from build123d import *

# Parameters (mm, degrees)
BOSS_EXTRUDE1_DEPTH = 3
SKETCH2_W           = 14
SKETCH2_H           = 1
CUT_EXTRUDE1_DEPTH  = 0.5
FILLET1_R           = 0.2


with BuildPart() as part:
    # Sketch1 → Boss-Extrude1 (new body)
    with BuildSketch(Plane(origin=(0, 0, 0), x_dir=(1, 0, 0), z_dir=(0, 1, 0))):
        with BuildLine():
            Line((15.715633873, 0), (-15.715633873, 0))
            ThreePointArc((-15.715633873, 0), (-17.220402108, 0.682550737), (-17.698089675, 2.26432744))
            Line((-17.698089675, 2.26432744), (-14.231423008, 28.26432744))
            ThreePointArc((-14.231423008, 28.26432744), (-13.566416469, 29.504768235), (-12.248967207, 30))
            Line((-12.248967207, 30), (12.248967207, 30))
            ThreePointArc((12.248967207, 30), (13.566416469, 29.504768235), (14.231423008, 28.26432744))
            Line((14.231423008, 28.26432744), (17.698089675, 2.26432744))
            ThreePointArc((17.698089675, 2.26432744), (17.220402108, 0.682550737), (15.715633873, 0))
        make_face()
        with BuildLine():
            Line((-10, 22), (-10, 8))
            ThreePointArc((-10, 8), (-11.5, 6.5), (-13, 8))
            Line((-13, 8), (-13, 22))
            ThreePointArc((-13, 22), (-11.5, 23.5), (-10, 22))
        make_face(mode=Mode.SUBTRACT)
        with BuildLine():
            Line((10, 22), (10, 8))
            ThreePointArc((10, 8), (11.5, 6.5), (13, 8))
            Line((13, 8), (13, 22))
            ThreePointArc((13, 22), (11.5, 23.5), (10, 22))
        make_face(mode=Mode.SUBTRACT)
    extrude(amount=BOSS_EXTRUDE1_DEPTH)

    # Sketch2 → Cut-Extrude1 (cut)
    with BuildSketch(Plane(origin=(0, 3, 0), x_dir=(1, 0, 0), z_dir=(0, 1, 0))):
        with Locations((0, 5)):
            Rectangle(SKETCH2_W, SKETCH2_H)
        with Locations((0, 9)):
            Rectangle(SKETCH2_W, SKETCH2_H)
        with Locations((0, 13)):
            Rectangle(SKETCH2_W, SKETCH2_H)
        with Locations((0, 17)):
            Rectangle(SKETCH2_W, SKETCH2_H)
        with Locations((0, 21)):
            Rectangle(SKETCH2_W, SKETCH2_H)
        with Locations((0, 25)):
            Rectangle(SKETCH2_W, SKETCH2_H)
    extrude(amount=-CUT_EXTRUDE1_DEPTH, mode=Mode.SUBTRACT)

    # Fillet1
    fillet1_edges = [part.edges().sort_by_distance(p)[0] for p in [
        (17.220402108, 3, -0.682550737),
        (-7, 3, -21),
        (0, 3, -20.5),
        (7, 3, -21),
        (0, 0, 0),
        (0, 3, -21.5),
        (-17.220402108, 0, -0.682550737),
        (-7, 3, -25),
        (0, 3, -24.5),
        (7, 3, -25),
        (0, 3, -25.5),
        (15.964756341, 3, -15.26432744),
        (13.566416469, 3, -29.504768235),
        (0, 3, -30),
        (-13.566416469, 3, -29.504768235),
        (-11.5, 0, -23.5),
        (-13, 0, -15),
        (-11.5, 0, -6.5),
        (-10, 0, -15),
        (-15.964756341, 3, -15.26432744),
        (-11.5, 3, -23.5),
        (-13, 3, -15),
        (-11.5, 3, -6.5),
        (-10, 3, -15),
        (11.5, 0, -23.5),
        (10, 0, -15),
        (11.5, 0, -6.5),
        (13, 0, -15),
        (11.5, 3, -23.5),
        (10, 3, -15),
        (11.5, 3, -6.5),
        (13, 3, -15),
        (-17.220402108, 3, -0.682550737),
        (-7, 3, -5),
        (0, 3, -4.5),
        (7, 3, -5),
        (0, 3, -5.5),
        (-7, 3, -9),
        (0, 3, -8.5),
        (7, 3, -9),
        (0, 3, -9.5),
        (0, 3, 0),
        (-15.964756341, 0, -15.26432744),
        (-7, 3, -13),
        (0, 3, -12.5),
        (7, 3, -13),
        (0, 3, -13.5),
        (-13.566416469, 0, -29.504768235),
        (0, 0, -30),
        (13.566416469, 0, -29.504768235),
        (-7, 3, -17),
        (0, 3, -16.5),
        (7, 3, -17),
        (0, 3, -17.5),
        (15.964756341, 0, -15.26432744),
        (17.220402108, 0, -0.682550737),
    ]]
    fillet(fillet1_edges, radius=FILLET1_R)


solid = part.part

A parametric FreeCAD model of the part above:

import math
import FreeCAD as App
import Part
import Sketcher


def edges_at(feature, points):
    """Names of the edges that pass closest to the given points."""
    edges = feature.Shape.Edges
    near = lambda p: min(range(len(edges)), key=lambda i: edges[i].distToShape(Part.Vertex(*p))[0])
    return sorted({f"Edge{near(p) + 1}" for p in points})


def add_polygon(sketch, points):
    """Adds a closed chain of lines whose ends are joined by coincident constraints."""
    first, n = sketch.GeometryCount, len(points)
    for a, b in zip(points, points[1:] + points[:1]):
        sketch.addGeometry(Part.LineSegment(App.Vector(*a, 0), App.Vector(*b, 0)), False)
    for i in range(n):
        sketch.addConstraint(Sketcher.Constraint("Coincident", first + i, 2, first + (i + 1) % n, 1))

doc = App.newDocument("Part")
params = doc.addObject("Spreadsheet::Sheet", "Params")
for row, (alias, value) in enumerate([
    ("sketch1_radius", "2 mm"),
    ("sketch1_radius2", "1.5 mm"),
    ("sketch1_height", "14 mm"),
    ("pad1_length", "3 mm"),
    ("sketch2_width", "14 mm"),
    ("sketch2_height", "1 mm"),
    ("pocket1_length", "0.5 mm"),
    ("fillet_radius", "0.2 mm"),
], start=1):
    params.set(f"A{row}", alias)
    params.set(f"B{row}", "=" + value)
    params.setAlias(f"B{row}", alias)

body = doc.addObject("PartDesign::Body", "Body")

# Sketch on XZ plane
sketch1 = doc.addObject("Sketcher::SketchObject", "Sketch")
body.addObject(sketch1)
sketch1.AttachmentSupport = (doc.XZ_Plane, [""])
sketch1.MapMode = "FlatFace"
sketch1.addGeometry(Part.LineSegment(App.Vector(-15.715634, 0, 0), App.Vector(15.715634, 0, 0)), False)
sketch1.addGeometry(Part.ArcOfCircle(Part.Circle(App.Vector(15.715634, -2, 0), App.Vector(0, 0, 1), 2), math.radians(-7.594643), math.radians(90)), False)
sketch1.addGeometry(Part.LineSegment(App.Vector(17.69809, -2.264327, 0), App.Vector(14.231423, -28.264327, 0)), False)
sketch1.addGeometry(Part.ArcOfCircle(Part.Circle(App.Vector(12.248967, -28, 0), App.Vector(0, 0, 1), 2), math.radians(-90), math.radians(-7.594643)), False)
sketch1.addGeometry(Part.LineSegment(App.Vector(12.248967, -30, 0), App.Vector(-12.248967, -30, 0)), False)
sketch1.addGeometry(Part.ArcOfCircle(Part.Circle(App.Vector(-12.248967, -28, 0), App.Vector(0, 0, 1), 2), math.radians(-172.405357), math.radians(-90)), False)
sketch1.addGeometry(Part.LineSegment(App.Vector(-14.231423, -28.264327, 0), App.Vector(-17.69809, -2.264327, 0)), False)
sketch1.addGeometry(Part.ArcOfCircle(Part.Circle(App.Vector(-15.715634, -2, 0), App.Vector(0, 0, 1), 2), math.radians(90), math.radians(187.594643)), False)
sketch1.addGeometry(Part.ArcOfCircle(Part.Circle(App.Vector(11.5, -22, 0), App.Vector(0, 0, 1), 1.5), math.radians(180), math.radians(360)), False)
sketch1.addGeometry(Part.LineSegment(App.Vector(13, -22, 0), App.Vector(13, -8, 0)), False)
sketch1.addGeometry(Part.ArcOfCircle(Part.Circle(App.Vector(11.5, -8, 0), App.Vector(0, 0, 1), 1.5), math.radians(0), math.radians(180)), False)
sketch1.addGeometry(Part.LineSegment(App.Vector(10, -8, 0), App.Vector(10, -22, 0)), False)
sketch1.addGeometry(Part.LineSegment(App.Vector(-10, -22, 0), App.Vector(-10, -8, 0)), False)
sketch1.addGeometry(Part.ArcOfCircle(Part.Circle(App.Vector(-11.5, -8, 0), App.Vector(0, 0, 1), 1.5), math.radians(0), math.radians(180)), False)
sketch1.addGeometry(Part.LineSegment(App.Vector(-13, -8, 0), App.Vector(-13, -22, 0)), False)
sketch1.addGeometry(Part.ArcOfCircle(Part.Circle(App.Vector(-11.5, -22, 0), App.Vector(0, 0, 1), 1.5), math.radians(180), math.radians(360)), False)
sketch1.addConstraint(Sketcher.Constraint("Tangent", 0, 2, 1, 2))
sketch1.addConstraint(Sketcher.Constraint("Tangent", 1, 1, 2, 1))
sketch1.addConstraint(Sketcher.Constraint("Tangent", 2, 2, 3, 2))
sketch1.addConstraint(Sketcher.Constraint("Tangent", 3, 1, 4, 1))
sketch1.addConstraint(Sketcher.Constraint("Tangent", 4, 2, 5, 2))
sketch1.addConstraint(Sketcher.Constraint("Tangent", 5, 1, 6, 1))
sketch1.addConstraint(Sketcher.Constraint("Tangent", 6, 2, 7, 2))
sketch1.addConstraint(Sketcher.Constraint("Tangent", 7, 1, 0, 1))
sketch1.addConstraint(Sketcher.Constraint("Tangent", 8, 2, 9, 1))
sketch1.addConstraint(Sketcher.Constraint("Tangent", 9, 2, 10, 1))
sketch1.addConstraint(Sketcher.Constraint("Tangent", 10, 2, 11, 1))
sketch1.addConstraint(Sketcher.Constraint("Tangent", 11, 2, 8, 1))
sketch1.addConstraint(Sketcher.Constraint("Tangent", 12, 2, 13, 1))
sketch1.addConstraint(Sketcher.Constraint("Tangent", 13, 2, 14, 1))
sketch1.addConstraint(Sketcher.Constraint("Tangent", 14, 2, 15, 1))
sketch1.addConstraint(Sketcher.Constraint("Tangent", 15, 2, 12, 1))
sketch1.addConstraint(Sketcher.Constraint("Horizontal", 0))
sketch1.addConstraint(Sketcher.Constraint("Horizontal", 4))
sketch1.addConstraint(Sketcher.Constraint("Vertical", 9))
sketch1.addConstraint(Sketcher.Constraint("Vertical", 11))
sketch1.addConstraint(Sketcher.Constraint("Vertical", 12))
sketch1.addConstraint(Sketcher.Constraint("Vertical", 14))
sketch1.addConstraint(Sketcher.Constraint("Equal", 1, 3))
sketch1.addConstraint(Sketcher.Constraint("Equal", 3, 5))
sketch1.addConstraint(Sketcher.Constraint("Equal", 5, 7))
sketch1.addConstraint(Sketcher.Constraint("Equal", 10, 13))
sketch1.addConstraint(Sketcher.Constraint("Symmetric", 0, 2, 7, 1, -1, 1))
sketch1.addConstraint(Sketcher.Constraint("Symmetric", 10, 3, 13, 3, -2))
sketch1.addConstraint(Sketcher.Constraint("Horizontal", 8, 3, 15, 3))
sketch1.addConstraint(Sketcher.Constraint("Horizontal", 2, 2, 5, 1))
sketch1.addConstraint(Sketcher.Constraint("Radius", 1, 2.0))
sketch1.addConstraint(Sketcher.Constraint("Radius", 8, 1.5))
sketch1.addConstraint(Sketcher.Constraint("DistanceY", 9, 1, 9, 2, 14.0))
sketch1.addConstraint(Sketcher.Constraint("DistanceY", 3, 3, -1, 1, 28.0))
sketch1.addConstraint(Sketcher.Constraint("DistanceY", 8, 3, -1, 1, 22.0))
sketch1.addConstraint(Sketcher.Constraint("DistanceX", -1, 1, 8, 2, 13.0))
sketch1.addConstraint(Sketcher.Constraint("DistanceX", 5, 3, 1, 3, 27.964601))
sketch1.addConstraint(Sketcher.Constraint("DistanceX", 0, 1, 0, 2, 31.431268))
sketch1.setExpression("Constraints[30]", "Params.sketch1_radius")
sketch1.setExpression("Constraints[31]", "Params.sketch1_radius2")
sketch1.setExpression("Constraints[32]", "Params.sketch1_height")
pad1 = doc.addObject("PartDesign::Pad", "Pad")
body.addObject(pad1)
pad1.Profile = sketch1
pad1.setExpression("Length", "Params.pad1_length")
pad1.Reversed = True

# Sketch on XZ plane
sketch2 = doc.addObject("Sketcher::SketchObject", "Sketch001")
body.addObject(sketch2)
sketch2.AttachmentSupport = (doc.XZ_Plane, [""])
sketch2.MapMode = "FlatFace"
sketch2.AttachmentOffset = App.Placement(App.Vector(0, 0, -3), App.Rotation())
add_polygon(sketch2, [(-7, -5.5), (-7, -4.5), (7, -4.5), (7, -5.5)])  # lines 0-3
add_polygon(sketch2, [(-7, -9.5), (-7, -8.5), (7, -8.5), (7, -9.5)])  # lines 4-7
add_polygon(sketch2, [(-7, -13.5), (-7, -12.5), (7, -12.5), (7, -13.5)])  # lines 8-11
add_polygon(sketch2, [(-7, -17.5), (-7, -16.5), (7, -16.5), (7, -17.5)])  # lines 12-15
add_polygon(sketch2, [(-7, -21.5), (-7, -20.5), (7, -20.5), (7, -21.5)])  # lines 16-19
add_polygon(sketch2, [(-7, -25.5), (-7, -24.5), (7, -24.5), (7, -25.5)])  # lines 20-23
sketch2.addConstraint(Sketcher.Constraint("Vertical", 0))
sketch2.addConstraint(Sketcher.Constraint("Horizontal", 1))
sketch2.addConstraint(Sketcher.Constraint("Vertical", 2))
sketch2.addConstraint(Sketcher.Constraint("Horizontal", 3))
sketch2.addConstraint(Sketcher.Constraint("Vertical", 4))
sketch2.addConstraint(Sketcher.Constraint("Horizontal", 5))
sketch2.addConstraint(Sketcher.Constraint("Vertical", 6))
sketch2.addConstraint(Sketcher.Constraint("Horizontal", 7))
sketch2.addConstraint(Sketcher.Constraint("Vertical", 8))
sketch2.addConstraint(Sketcher.Constraint("Horizontal", 9))
sketch2.addConstraint(Sketcher.Constraint("Vertical", 10))
sketch2.addConstraint(Sketcher.Constraint("Horizontal", 11))
sketch2.addConstraint(Sketcher.Constraint("Vertical", 12))
sketch2.addConstraint(Sketcher.Constraint("Horizontal", 13))
sketch2.addConstraint(Sketcher.Constraint("Vertical", 14))
sketch2.addConstraint(Sketcher.Constraint("Horizontal", 15))
sketch2.addConstraint(Sketcher.Constraint("Vertical", 16))
sketch2.addConstraint(Sketcher.Constraint("Horizontal", 17))
sketch2.addConstraint(Sketcher.Constraint("Vertical", 18))
sketch2.addConstraint(Sketcher.Constraint("Horizontal", 19))
sketch2.addConstraint(Sketcher.Constraint("Vertical", 20))
sketch2.addConstraint(Sketcher.Constraint("Horizontal", 21))
sketch2.addConstraint(Sketcher.Constraint("Vertical", 22))
sketch2.addConstraint(Sketcher.Constraint("Horizontal", 23))
sketch2.addConstraint(Sketcher.Constraint("Vertical", 3, 2, 4, 2))
sketch2.addConstraint(Sketcher.Constraint("Vertical", 2, 2, 5, 2))
sketch2.addConstraint(Sketcher.Constraint("Vertical", 7, 2, 8, 2))
sketch2.addConstraint(Sketcher.Constraint("Vertical", 6, 2, 9, 2))
sketch2.addConstraint(Sketcher.Constraint("Vertical", 11, 2, 12, 2))
sketch2.addConstraint(Sketcher.Constraint("Vertical", 10, 2, 13, 2))
sketch2.addConstraint(Sketcher.Constraint("Vertical", 15, 2, 16, 2))
sketch2.addConstraint(Sketcher.Constraint("Vertical", 14, 2, 17, 2))
sketch2.addConstraint(Sketcher.Constraint("Vertical", 19, 2, 20, 2))
sketch2.addConstraint(Sketcher.Constraint("Vertical", 18, 2, 21, 2))
sketch2.addConstraint(Sketcher.Constraint("Equal", 2, 4))
sketch2.addConstraint(Sketcher.Constraint("Equal", 6, 8))
sketch2.addConstraint(Sketcher.Constraint("Equal", 10, 12))
sketch2.addConstraint(Sketcher.Constraint("Equal", 14, 16))
sketch2.addConstraint(Sketcher.Constraint("Equal", 18, 20))
sketch2.addConstraint(Sketcher.Constraint("DistanceX", 1, 1, 1, 2, 14.0))
sketch2.addConstraint(Sketcher.Constraint("DistanceY", 0, 1, 0, 2, 1.0))
sketch2.addConstraint(Sketcher.Constraint("DistanceX", 0, 2, -1, 1, 7.0))
sketch2.addConstraint(Sketcher.Constraint("DistanceY", 4, 2, 3, 2, 3.0))
sketch2.addConstraint(Sketcher.Constraint("DistanceY", 8, 2, 7, 2, 3.0))
sketch2.addConstraint(Sketcher.Constraint("DistanceY", 12, 2, 11, 2, 3.0))
sketch2.addConstraint(Sketcher.Constraint("DistanceY", 16, 2, 15, 2, 3.0))
sketch2.addConstraint(Sketcher.Constraint("DistanceY", 20, 2, 19, 2, 3.0))
sketch2.addConstraint(Sketcher.Constraint("DistanceY", 0, 2, -1, 1, 4.5))
sketch2.setExpression("Constraints[63]", "Params.sketch2_width")
sketch2.setExpression("Constraints[64]", "Params.sketch2_height")
pocket1 = doc.addObject("PartDesign::Pocket", "Pocket")
body.addObject(pocket1)
pocket1.Profile = sketch2
pocket1.setExpression("Length", "Params.pocket1_length")
pocket1.Reversed = True
doc.recompute()

fillet = doc.addObject("PartDesign::Fillet", "Fillet")
body.addObject(fillet)
fillet.Base = (pocket1, edges_at(pocket1, [
    (17.22, 3, -0.683),
    (-7, 3, -21),
    (0, 3, -20.5),
    (7, 3, -21),
    (0, 0, 0),
    (0, 3, -21.5),
    (-17.22, 0, -0.683),
    (-7, 3, -25),
    (0, 3, -24.5),
    (7, 3, -25),
    (0, 3, -25.5),
    (15.965, 3, -15.264),
    (13.566, 3, -29.505),
    (0, 3, -30),
    (-13.566, 3, -29.505),
    (-11.5, 0, -23.5),
    (-13, 0, -15),
    (-11.5, 0, -6.5),
    (-10, 0, -15),
    (-15.965, 3, -15.264),
    (-11.5, 3, -23.5),
    (-13, 3, -15),
    (-11.5, 3, -6.5),
    (-10, 3, -15),
    (11.5, 0, -23.5),
    (10, 0, -15),
    (11.5, 0, -6.5),
    (13, 0, -15),
    (11.5, 3, -23.5),
    (10, 3, -15),
    (11.5, 3, -6.5),
    (13, 3, -15),
    (-17.22, 3, -0.683),
    (-7, 3, -5),
    (0, 3, -4.5),
    (7, 3, -5),
    (0, 3, -5.5),
    (-7, 3, -9),
    (0, 3, -8.5),
    (7, 3, -9),
    (0, 3, -9.5),
    (0, 3, 0),
    (-15.965, 0, -15.264),
    (-7, 3, -13),
    (0, 3, -12.5),
    (7, 3, -13),
    (0, 3, -13.5),
    (-13.566, 0, -29.505),
    (0, 0, -30),
    (13.566, 0, -29.505),
    (-7, 3, -17),
    (0, 3, -16.5),
    (7, 3, -17),
    (0, 3, -17.5),
    (15.965, 0, -15.264),
    (17.22, 0, -0.683),
]))
fillet.setExpression("Radius", "Params.fillet_radius")

doc.recompute()
